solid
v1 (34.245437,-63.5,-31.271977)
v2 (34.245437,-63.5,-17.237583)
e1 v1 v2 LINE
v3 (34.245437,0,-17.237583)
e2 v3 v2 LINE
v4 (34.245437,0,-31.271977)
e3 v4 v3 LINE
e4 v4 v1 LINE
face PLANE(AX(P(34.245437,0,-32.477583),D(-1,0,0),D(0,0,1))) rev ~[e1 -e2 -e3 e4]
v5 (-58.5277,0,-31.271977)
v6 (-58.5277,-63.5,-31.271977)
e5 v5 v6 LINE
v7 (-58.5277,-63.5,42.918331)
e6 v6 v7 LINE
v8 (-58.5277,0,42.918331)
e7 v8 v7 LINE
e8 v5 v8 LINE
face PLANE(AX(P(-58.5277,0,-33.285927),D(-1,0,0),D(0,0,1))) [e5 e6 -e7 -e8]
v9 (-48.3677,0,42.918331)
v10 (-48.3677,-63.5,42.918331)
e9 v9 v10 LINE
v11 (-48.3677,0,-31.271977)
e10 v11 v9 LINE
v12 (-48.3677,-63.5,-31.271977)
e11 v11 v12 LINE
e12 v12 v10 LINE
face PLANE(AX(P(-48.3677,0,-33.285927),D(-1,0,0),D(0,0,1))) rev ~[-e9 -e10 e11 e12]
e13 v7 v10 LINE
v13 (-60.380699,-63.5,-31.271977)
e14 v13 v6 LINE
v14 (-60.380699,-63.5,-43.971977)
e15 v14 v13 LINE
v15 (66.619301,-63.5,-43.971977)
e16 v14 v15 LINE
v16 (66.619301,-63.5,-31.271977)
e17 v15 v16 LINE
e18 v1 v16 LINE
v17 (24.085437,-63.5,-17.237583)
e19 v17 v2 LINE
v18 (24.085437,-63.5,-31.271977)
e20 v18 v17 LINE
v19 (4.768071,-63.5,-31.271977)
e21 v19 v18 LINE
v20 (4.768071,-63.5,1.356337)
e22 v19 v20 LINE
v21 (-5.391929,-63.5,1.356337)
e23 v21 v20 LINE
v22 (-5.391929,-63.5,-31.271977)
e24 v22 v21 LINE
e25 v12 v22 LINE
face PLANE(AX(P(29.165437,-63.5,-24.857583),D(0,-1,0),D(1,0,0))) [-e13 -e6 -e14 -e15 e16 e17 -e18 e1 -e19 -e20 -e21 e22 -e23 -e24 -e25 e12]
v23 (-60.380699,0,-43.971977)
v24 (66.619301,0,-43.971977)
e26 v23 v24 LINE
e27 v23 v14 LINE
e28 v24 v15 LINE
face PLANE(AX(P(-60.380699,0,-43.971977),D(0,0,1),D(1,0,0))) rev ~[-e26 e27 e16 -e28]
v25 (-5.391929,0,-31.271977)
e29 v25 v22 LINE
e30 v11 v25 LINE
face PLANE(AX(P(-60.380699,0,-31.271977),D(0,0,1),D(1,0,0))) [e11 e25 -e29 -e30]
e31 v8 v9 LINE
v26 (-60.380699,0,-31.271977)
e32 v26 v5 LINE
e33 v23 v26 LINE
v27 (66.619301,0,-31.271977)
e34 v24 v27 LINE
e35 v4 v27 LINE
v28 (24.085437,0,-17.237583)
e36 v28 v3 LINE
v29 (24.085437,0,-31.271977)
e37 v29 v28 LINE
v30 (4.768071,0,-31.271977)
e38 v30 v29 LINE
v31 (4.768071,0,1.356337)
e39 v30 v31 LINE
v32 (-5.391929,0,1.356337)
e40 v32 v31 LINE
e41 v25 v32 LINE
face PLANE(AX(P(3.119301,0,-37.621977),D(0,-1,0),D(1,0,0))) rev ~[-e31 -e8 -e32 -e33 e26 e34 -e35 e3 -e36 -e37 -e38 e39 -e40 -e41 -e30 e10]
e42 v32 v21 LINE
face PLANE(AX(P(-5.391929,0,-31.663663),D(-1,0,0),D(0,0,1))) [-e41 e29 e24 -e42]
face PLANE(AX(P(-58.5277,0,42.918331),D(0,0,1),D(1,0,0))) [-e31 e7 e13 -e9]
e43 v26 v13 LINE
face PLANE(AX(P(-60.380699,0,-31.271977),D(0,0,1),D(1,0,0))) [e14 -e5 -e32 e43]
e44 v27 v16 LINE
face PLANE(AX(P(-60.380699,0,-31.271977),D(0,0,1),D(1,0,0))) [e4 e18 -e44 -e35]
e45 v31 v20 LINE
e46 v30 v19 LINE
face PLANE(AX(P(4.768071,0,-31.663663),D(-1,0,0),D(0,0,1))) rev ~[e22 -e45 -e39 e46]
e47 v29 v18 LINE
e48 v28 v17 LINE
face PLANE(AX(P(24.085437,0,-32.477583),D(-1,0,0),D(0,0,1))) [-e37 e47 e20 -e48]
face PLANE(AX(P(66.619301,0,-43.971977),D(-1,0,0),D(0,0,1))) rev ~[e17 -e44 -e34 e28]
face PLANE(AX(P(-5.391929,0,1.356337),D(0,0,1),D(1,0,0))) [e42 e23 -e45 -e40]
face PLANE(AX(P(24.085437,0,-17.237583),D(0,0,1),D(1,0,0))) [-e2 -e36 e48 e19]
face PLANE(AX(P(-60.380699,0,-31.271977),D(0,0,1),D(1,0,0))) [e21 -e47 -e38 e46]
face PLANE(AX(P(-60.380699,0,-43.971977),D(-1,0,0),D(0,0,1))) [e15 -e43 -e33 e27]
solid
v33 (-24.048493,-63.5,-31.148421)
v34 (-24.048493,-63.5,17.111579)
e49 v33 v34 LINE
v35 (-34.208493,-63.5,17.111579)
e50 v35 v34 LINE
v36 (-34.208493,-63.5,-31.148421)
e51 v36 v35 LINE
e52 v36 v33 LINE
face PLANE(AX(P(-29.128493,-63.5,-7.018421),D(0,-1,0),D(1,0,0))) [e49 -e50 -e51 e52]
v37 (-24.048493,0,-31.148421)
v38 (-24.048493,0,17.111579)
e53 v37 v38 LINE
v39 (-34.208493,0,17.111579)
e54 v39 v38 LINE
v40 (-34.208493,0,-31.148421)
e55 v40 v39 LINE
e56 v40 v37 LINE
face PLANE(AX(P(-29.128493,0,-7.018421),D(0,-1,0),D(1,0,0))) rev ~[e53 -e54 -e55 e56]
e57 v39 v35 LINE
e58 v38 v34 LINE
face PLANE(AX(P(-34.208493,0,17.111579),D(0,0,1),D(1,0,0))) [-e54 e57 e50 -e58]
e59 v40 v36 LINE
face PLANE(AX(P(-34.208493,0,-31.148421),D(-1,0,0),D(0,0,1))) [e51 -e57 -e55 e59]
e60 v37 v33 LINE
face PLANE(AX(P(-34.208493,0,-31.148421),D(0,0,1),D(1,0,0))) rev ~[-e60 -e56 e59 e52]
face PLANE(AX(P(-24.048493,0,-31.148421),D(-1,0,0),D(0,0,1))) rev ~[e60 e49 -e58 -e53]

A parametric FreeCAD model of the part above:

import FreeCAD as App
import Part
import Sketcher
from FreeCAD import Vector
Q = App.Units.Quantity


def add_polygon(sketch, points):
    """Adds a closed chain of lines whose ends are joined by coincident constraints."""
    first, n = sketch.GeometryCount, len(points)
    for a, b in zip(points, points[1:] + points[:1]):
        sketch.addGeometry(Part.LineSegment(App.Vector(*a, 0), App.Vector(*b, 0)), False)
    for i in range(n):
        sketch.addConstraint(Sketcher.Constraint("Coincident", first + i, 2, first + (i + 1) % n, 1))

doc = App.newDocument("Part")
body = doc.addObject("PartDesign::Body", "Body")

sketch1 = body.newObject("Sketcher::SketchObject", "Sketch")
sketch1.AttachmentSupport = (doc.getObject("XZ_Plane"), [""])
sketch1.MapMode = "FlatFace"
add_polygon(sketch1, [(-60, -31), (-60, -44), (67, -44), (67, -31)])
sketch1.addConstraint([
    Sketcher.Constraint("Vertical", 0),
    Sketcher.Constraint("Horizontal", 1),
    Sketcher.Constraint("Vertical", 2),
    Sketcher.Constraint("Horizontal", 3),
    Sketcher.Constraint("DistanceX", 1, 1, 1, 2, Q("5 in")),
    Sketcher.Constraint("DistanceY", 0, 2, 0, 1, Q("0.5 in")),
    Sketcher.Constraint("DistanceX", 0, 2, -1, 1, Q("60.380699 mm")),
    Sketcher.Constraint("DistanceY", 0, 2, -1, 1, Q("43.971977 mm")),
])
pad1 = body.newObject("PartDesign::Pad", "Pad")
pad1.Profile = sketch1
pad1.Length = Q("2.5 in")

sketch2 = body.newObject("Sketcher::SketchObject", "Sketch001")
sketch2.AttachmentSupport = (doc.getObject("XZ_Plane"), [""])
sketch2.MapMode = "FlatFace"
add_polygon(sketch2, [(-59, 43), (-59, -33), (-48, -33), (-48, 43)])
sketch2.addConstraint([
    Sketcher.Constraint("Vertical", 0),
    Sketcher.Constraint("Horizontal", 1),
    Sketcher.Constraint("Vertical", 2),
    Sketcher.Constraint("Horizontal", 3),
    Sketcher.Constraint("DistanceX", 1, 1, 1, 2, Q("0.4 in")),
    Sketcher.Constraint("DistanceY", 0, 2, 0, 1, Q("76.204258 mm")),
    Sketcher.Constraint("DistanceX", 0, 2, -1, 1, Q("58.5277 mm")),
    Sketcher.Constraint("DistanceY", -1, 1, 2, 2, Q("42.918331 mm")),
])
pad2 = body.newObject("PartDesign::Pad", "Pad001")
pad2.Profile = sketch2
pad2.Length = Q("2.5 in")

sketch3 = body.newObject("Sketcher::SketchObject", "Sketch002")
sketch3.AttachmentSupport = (doc.getObject("XZ_Plane"), [""])
sketch3.MapMode = "FlatFace"
add_polygon(sketch3, [(-5, 1), (-5, -32), (5, -32), (5, 1)])
sketch3.addConstraint([
    Sketcher.Constraint("Vertical", 0),
    Sketcher.Constraint("Horizontal", 1),
    Sketcher.Constraint("Vertical", 2),
    Sketcher.Constraint("Horizontal", 3),
    Sketcher.Constraint("DistanceX", 1, 1, 1, 2, Q("0.4 in")),
    Sketcher.Constraint("DistanceY", 0, 2, 0, 1, Q("1.3 in")),
    Sketcher.Constraint("DistanceX", 0, 2, -1, 1, Q("5.391929 mm")),
    Sketcher.Constraint("DistanceY", 0, 2, -1, 1, Q("31.663663 mm")),
])
pad3 = body.newObject("PartDesign::Pad", "Pad002")
pad3.Profile = sketch3
pad3.Length = Q("2.5 in")

sketch4 = body.newObject("Sketcher::SketchObject", "Sketch003")
sketch4.AttachmentSupport = (doc.getObject("XZ_Plane"), [""])
sketch4.MapMode = "FlatFace"
add_polygon(sketch4, [(24, -17), (24, -32), (34, -32), (34, -17)])
sketch4.addConstraint([
    Sketcher.Constraint("Vertical", 0),
    Sketcher.Constraint("Horizontal", 1),
    Sketcher.Constraint("Vertical", 2),
    Sketcher.Constraint("Horizontal", 3),
    Sketcher.Constraint("DistanceX", 1, 1, 1, 2, Q("0.4 in")),
    Sketcher.Constraint("DistanceY", 0, 2, 0, 1, Q("0.6 in")),
    Sketcher.Constraint("DistanceX", -1, 1, 0, 2, Q("24.085437 mm")),
    Sketcher.Constraint("DistanceY", 0, 2, -1, 1, Q("32.477583 mm")),
])
pad4 = body.newObject("PartDesign::Pad", "Pad003")
pad4.Profile = sketch4
pad4.Length = Q("2.5 in")
body2 = doc.addObject("PartDesign::Body", "Body001")

sketch5 = body2.newObject("Sketcher::SketchObject", "Sketch004")
sketch5.AttachmentSupport = (doc.getObject("XZ_Plane001"), [""])
sketch5.MapMode = "FlatFace"
add_polygon(sketch5, [(-34, 17), (-34, -31), (-24, -31), (-24, 17)])
sketch5.addConstraint([
    Sketcher.Constraint("Vertical", 0),
    Sketcher.Constraint("Horizontal", 1),
    Sketcher.Constraint("Vertical", 2),
    Sketcher.Constraint("Horizontal", 3),
    Sketcher.Constraint("DistanceX", 1, 1, 1, 2, Q("0.4 in")),
    Sketcher.Constraint("DistanceY", 0, 2, 0, 1, Q("1.9 in")),
    Sketcher.Constraint("DistanceY", 0, 2, -1, 1, Q("31.148421 mm")),
    Sketcher.Constraint("DistanceX", 0, 2, -1, 1, Q("34.208493 mm")),
])
pad5 = body2.newObject("PartDesign::Pad", "Pad004")
pad5.Profile = sketch5
pad5.Length = Q("2.5 in")

doc.recompute()
